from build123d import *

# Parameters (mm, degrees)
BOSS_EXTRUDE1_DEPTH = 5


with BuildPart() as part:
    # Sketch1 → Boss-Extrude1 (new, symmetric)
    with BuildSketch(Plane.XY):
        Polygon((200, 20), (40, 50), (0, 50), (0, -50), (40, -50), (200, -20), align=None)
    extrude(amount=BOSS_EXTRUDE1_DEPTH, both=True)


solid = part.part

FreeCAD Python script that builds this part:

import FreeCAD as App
import Part
import Sketcher
from FreeCAD import Vector
Q = App.Units.Quantity


def add_polygon(sketch, points):
    """Adds a closed chain of lines whose ends are joined by coincident constraints."""
    first, n = sketch.GeometryCount, len(points)
    for a, b in zip(points, points[1:] + points[:1]):
        sketch.addGeometry(Part.LineSegment(App.Vector(*a, 0), App.Vector(*b, 0)), False)
    for i in range(n):
        sketch.addConstraint(Sketcher.Constraint("Coincident", first + i, 2, first + (i + 1) % n, 1))

doc = App.newDocument("Part")
body = doc.addObject("PartDesign::Body", "Body")

# Sketch on XY plane
sketch1 = body.newObject("Sketcher::SketchObject", "Sketch")
sketch1.AttachmentSupport = (doc.getObject("XY_Plane"), [""])
sketch1.MapMode = "FlatFace"
add_polygon(sketch1, [(200, 20), (40, 50), (0, 50), (0, -50), (40, -50), (200, -20)])  # lines 0-5
sketch1.addConstraint(Sketcher.Constraint("Horizontal", 1))
sketch1.addConstraint(Sketcher.Constraint("Vertical", 2))
sketch1.addConstraint(Sketcher.Constraint("Horizontal", 3))
sketch1.addConstraint(Sketcher.Constraint("Vertical", 5))
sketch1.addConstraint(Sketcher.Constraint("Symmetric", 1, 2, 2, 2, -1, 1))
sketch1.addConstraint(Sketcher.Constraint("Vertical", 0, 2, 3, 2))
sketch1.addConstraint(Sketcher.Constraint("Equal", 3, 5))
sketch1.addConstraint(Sketcher.Constraint("Equal", 0, 4))
sketch1.addConstraint(Sketcher.Constraint("DistanceX", 1, 2, 1, 1, Q("40 mm")))
sketch1.addConstraint(Sketcher.Constraint("DistanceY", 2, 2, 2, 1, Q("100 mm")))
sketch1.addConstraint(Sketcher.Constraint("DistanceX", -1, 1, 4, 2, Q("200 mm")))
pad1 = body.newObject("PartDesign::Pad", "Pad")
pad1.Profile = sketch1
pad1.Length = 10
pad1.Midplane = True

doc.recompute()
